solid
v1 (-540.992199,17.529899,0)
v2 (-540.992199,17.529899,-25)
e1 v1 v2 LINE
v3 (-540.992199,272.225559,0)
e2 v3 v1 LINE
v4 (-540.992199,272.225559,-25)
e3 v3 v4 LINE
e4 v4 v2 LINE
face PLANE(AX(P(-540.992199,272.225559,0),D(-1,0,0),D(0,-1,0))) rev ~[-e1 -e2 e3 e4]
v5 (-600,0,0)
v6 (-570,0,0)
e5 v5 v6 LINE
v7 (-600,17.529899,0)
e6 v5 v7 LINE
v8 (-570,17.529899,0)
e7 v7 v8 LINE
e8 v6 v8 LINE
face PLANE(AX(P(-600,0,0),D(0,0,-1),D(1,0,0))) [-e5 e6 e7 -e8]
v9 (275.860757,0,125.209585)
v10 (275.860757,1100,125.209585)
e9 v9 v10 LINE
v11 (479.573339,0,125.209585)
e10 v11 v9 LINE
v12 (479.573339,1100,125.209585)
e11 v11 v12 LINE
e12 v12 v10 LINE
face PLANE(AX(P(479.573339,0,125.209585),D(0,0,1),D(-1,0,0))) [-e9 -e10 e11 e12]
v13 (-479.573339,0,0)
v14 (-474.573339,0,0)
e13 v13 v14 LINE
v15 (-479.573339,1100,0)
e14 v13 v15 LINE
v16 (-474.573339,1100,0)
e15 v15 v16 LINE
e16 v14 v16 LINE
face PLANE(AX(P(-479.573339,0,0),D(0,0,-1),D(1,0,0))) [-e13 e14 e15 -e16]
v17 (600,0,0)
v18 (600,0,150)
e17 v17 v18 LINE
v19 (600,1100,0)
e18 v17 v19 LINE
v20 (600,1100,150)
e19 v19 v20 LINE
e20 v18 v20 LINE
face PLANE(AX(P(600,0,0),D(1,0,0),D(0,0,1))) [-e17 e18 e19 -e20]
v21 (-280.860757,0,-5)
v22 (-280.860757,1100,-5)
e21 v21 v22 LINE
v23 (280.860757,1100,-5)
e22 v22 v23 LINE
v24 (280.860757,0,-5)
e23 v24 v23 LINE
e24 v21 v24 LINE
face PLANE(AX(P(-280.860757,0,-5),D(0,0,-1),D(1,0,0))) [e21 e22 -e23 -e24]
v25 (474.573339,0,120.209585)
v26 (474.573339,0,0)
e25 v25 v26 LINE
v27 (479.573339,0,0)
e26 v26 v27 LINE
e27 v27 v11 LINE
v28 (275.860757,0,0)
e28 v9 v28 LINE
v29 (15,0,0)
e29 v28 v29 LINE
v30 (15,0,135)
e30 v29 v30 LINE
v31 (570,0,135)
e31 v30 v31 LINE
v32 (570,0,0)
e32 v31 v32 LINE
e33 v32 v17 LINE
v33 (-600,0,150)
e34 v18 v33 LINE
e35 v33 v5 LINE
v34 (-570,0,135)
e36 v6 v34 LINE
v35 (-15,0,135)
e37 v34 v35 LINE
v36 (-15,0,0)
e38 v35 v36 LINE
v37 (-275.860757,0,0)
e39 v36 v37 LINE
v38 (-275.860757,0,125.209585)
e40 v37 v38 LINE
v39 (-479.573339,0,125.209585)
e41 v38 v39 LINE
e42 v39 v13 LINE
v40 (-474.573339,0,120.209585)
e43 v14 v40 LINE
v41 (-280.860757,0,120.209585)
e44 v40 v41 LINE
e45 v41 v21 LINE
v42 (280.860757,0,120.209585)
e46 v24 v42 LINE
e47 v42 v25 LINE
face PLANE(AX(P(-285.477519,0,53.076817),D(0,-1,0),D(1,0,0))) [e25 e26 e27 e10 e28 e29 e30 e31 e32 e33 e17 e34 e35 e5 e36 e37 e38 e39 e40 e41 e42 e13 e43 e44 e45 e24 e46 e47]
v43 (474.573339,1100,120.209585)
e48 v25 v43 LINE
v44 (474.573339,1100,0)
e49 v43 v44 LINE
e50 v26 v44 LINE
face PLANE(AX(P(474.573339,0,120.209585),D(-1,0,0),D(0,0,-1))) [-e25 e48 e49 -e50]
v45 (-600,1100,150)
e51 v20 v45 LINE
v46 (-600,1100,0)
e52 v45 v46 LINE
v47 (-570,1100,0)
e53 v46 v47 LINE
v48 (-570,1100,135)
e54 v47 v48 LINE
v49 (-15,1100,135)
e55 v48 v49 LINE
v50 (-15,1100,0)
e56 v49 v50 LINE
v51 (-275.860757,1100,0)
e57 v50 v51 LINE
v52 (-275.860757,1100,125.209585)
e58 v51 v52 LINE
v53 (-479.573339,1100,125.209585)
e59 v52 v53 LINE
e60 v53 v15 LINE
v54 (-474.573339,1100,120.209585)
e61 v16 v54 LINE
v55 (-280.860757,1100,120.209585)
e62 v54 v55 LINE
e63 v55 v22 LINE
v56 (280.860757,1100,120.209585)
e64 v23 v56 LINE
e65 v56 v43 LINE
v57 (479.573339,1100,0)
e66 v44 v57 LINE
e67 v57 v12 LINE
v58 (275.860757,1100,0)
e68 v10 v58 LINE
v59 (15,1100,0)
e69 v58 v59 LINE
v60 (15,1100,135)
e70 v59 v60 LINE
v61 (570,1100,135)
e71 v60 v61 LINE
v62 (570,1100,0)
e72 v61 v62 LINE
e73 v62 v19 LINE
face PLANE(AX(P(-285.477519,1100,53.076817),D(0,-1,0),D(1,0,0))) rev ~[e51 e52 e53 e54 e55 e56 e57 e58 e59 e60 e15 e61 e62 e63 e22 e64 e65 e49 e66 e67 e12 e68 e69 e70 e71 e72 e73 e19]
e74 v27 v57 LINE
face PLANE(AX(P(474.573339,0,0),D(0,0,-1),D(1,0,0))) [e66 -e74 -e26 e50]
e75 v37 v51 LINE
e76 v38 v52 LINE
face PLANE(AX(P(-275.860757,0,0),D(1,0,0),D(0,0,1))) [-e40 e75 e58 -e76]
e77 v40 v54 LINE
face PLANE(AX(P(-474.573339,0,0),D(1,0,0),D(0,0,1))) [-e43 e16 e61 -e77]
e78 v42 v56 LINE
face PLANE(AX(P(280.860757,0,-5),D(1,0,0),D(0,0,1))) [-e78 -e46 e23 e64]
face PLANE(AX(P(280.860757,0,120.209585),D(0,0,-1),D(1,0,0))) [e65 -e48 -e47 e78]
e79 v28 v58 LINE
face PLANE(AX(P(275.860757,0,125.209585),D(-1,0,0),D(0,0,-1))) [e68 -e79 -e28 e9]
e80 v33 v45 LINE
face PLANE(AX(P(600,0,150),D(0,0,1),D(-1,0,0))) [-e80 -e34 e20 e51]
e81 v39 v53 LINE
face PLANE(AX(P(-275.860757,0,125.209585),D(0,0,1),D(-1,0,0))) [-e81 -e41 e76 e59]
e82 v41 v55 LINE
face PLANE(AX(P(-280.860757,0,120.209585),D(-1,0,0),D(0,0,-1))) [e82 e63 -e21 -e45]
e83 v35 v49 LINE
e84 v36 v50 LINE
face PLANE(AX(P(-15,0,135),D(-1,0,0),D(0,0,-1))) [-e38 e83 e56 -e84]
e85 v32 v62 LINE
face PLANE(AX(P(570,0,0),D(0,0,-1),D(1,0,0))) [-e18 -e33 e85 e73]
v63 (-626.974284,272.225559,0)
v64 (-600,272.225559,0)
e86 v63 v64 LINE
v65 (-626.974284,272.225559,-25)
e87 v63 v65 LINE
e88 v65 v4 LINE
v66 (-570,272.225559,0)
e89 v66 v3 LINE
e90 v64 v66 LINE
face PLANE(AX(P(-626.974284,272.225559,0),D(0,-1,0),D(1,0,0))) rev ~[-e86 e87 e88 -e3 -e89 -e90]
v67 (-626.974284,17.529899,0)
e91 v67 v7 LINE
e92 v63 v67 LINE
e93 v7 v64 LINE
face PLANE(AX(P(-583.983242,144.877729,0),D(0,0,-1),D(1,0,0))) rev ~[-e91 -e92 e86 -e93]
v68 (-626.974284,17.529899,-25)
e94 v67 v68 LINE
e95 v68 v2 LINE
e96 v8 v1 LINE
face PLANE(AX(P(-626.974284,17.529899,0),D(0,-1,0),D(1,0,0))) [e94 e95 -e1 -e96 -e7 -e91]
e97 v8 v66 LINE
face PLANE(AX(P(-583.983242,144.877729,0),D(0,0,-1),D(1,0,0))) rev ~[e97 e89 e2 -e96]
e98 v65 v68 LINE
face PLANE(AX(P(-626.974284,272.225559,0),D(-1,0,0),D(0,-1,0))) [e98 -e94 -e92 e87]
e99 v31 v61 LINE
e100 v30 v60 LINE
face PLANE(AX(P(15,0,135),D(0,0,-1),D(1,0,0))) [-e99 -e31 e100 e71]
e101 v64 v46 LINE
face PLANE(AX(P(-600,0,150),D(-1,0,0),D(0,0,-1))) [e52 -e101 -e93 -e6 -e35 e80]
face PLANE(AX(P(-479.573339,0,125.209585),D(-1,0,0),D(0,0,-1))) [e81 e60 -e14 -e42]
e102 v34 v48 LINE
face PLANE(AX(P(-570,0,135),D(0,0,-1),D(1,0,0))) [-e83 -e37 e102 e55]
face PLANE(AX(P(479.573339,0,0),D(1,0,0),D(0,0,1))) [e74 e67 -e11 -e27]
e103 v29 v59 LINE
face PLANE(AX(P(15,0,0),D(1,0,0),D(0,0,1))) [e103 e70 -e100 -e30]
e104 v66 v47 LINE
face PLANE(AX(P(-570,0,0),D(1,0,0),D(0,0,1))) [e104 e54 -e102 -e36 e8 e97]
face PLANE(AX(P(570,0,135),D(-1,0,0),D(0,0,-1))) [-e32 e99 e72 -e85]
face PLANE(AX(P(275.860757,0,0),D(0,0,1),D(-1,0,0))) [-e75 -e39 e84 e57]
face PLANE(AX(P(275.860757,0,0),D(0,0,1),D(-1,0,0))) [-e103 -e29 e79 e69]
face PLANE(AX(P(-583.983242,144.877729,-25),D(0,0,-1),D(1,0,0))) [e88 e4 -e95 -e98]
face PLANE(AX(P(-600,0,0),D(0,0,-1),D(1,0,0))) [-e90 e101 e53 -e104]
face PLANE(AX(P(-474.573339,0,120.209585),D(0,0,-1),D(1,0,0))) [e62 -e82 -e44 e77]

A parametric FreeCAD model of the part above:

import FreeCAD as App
import Part
import Sketcher
from FreeCAD import Vector


def add_polygon(sketch, points):
    """Adds a closed chain of lines whose ends are joined by coincident constraints."""
    first, n = sketch.GeometryCount, len(points)
    for a, b in zip(points, points[1:] + points[:1]):
        sketch.addGeometry(Part.LineSegment(App.Vector(*a, 0), App.Vector(*b, 0)), False)
    for i in range(n):
        sketch.addConstraint(Sketcher.Constraint("Coincident", first + i, 2, first + (i + 1) % n, 1))

doc = App.newDocument("Part")
params = doc.addObject("Spreadsheet::Sheet", "Params")
for row, (alias, value) in enumerate([
    ("sketch1_width", "1200 mm"),
    ("sketch1_width2", "30 mm"),
    ("sketch1_height", "150 mm"),
    ("sketch1_height2", "135 mm"),
    ("pad1_length", "1100 mm"),
    ("sketch2_width", "5 mm"),
    ("pad2_length", "1100 mm"),
    ("pad3_length", "25 mm"),
], start=1):
    params.set(f"A{row}", alias)
    params.set(f"B{row}", "=" + value)
    params.setAlias(f"B{row}", alias)

body = doc.addObject("PartDesign::Body", "Body")

sketch1 = doc.addObject("Sketcher::SketchObject", "Sketch")
body.addObject(sketch1)
sketch1.AttachmentSupport = (doc.XZ_Plane, [""])
sketch1.MapMode = "FlatFace"
add_polygon(sketch1, [(600, 150), (-600, 150), (-600, 0), (-570, 0), (-570, 135), (-15, 135), (-15, 0), (15, 0), (15, 135), (570, 135), (570, 0), (600, 0)])
sketch1.addConstraint([
    Sketcher.Constraint("Horizontal", 0),
    Sketcher.Constraint("Vertical", 1),
    Sketcher.Constraint("Horizontal", 2),
    Sketcher.Constraint("Vertical", 3),
    Sketcher.Constraint("Horizontal", 4),
    Sketcher.Constraint("Vertical", 5),
    Sketcher.Constraint("Horizontal", 6),
    Sketcher.Constraint("Vertical", 7),
    Sketcher.Constraint("Horizontal", 8),
    Sketcher.Constraint("Vertical", 9),
    Sketcher.Constraint("Horizontal", 10),
    Sketcher.Constraint("Vertical", 11),
    Sketcher.Constraint("Symmetric", 5, 2, 6, 2, -1, 1),
    Sketcher.Constraint("Symmetric", 2, 2, 9, 2, -1, 1),
    Sketcher.Constraint("Symmetric", 1, 2, 10, 2, -2),
    Sketcher.Constraint("Horizontal", 4, 2, 7, 2),
    Sketcher.Constraint("Equal", 2, 6),
    Sketcher.Constraint("DistanceX", 0, 2, 0, 1, 1200.0),
    Sketcher.Constraint("DistanceX", 2, 1, 2, 2, 30.0),
    Sketcher.Constraint("DistanceY", 1, 2, 1, 1, 150.0),
    Sketcher.Constraint("DistanceY", 3, 1, 3, 2, 135.0),
])
sketch1.setExpression("Constraints[29]", "Params.sketch1_width")
sketch1.setExpression("Constraints[30]", "Params.sketch1_width2")
sketch1.setExpression("Constraints[31]", "Params.sketch1_height")
sketch1.setExpression("Constraints[32]", "Params.sketch1_height2")
pad1 = doc.addObject("PartDesign::Pad", "Pad")
body.addObject(pad1)
pad1.Profile = sketch1
pad1.setExpression("Length", "Params.pad1_length")
pad1.Reversed = True

sketch2 = doc.addObject("Sketcher::SketchObject", "Sketch001")
body.addObject(sketch2)
sketch2.AttachmentSupport = (doc.XZ_Plane, [""])
sketch2.MapMode = "FlatFace"
add_polygon(sketch2, [(-276, 0), (-276, 125), (-480, 125), (-480, 0), (-475, 0), (-475, 120), (-281, 120), (-281, -5), (281, -5), (281, 120), (475, 120), (475, 0), (480, 0), (480, 125), (276, 125), (276, 0)])
sketch2.addConstraint([
    Sketcher.Constraint("Vertical", 0),
    Sketcher.Constraint("Horizontal", 1),
    Sketcher.Constraint("Vertical", 2),
    Sketcher.Constraint("Horizontal", 3),
    Sketcher.Constraint("Vertical", 4),
    Sketcher.Constraint("Horizontal", 5),
    Sketcher.Constraint("Vertical", 6),
    Sketcher.Constraint("Horizontal", 7),
    Sketcher.Constraint("Vertical", 8),
    Sketcher.Constraint("Horizontal", 9),
    Sketcher.Constraint("Vertical", 10),
    Sketcher.Constraint("Horizontal", 11),
    Sketcher.Constraint("Vertical", 12),
    Sketcher.Constraint("Horizontal", 13),
    Sketcher.Constraint("Vertical", 14),
    Sketcher.Constraint("Horizontal", 15),
    Sketcher.Constraint("Symmetric", 3, 2, 10, 2, -1, 1),
    Sketcher.Constraint("Symmetric", 14, 2, 15, 2, -1, 1),
    Sketcher.Constraint("Symmetric", 5, 2, 8, 2, -2),
    Sketcher.Constraint("Symmetric", 2, 2, 11, 2, -2),
    Sketcher.Constraint("Horizontal", 1, 2, 12, 2),
    Sketcher.Constraint("Equal", 2, 6),
    Sketcher.Constraint("DistanceX", 3, 1, 3, 2, 5.0),
    Sketcher.Constraint("DistanceY", 6, 2, -1, 1, 5.0),
    Sketcher.Constraint("DistanceX", 5, 2, 0, 2, 5.0),
    Sketcher.Constraint("DistanceX", 1, 2, 1, 1, 203.712582),
    Sketcher.Constraint("DistanceX", 7, 1, 7, 2, 561.721514),
    Sketcher.Constraint("DistanceY", 0, 1, 0, 2, 125.209585),
])
sketch2.setExpression("Constraints[38]", "Params.sketch2_width")
pad2 = doc.addObject("PartDesign::Pad", "Pad001")
body.addObject(pad2)
pad2.Profile = sketch2
pad2.setExpression("Length", "Params.pad2_length")
pad2.Reversed = True

sketch3 = doc.addObject("Sketcher::SketchObject", "Sketch002")
body.addObject(sketch3)
sketch3.AttachmentSupport = (doc.XY_Plane, [""])
sketch3.MapMode = "FlatFace"
add_polygon(sketch3, [(-627, 18), (-627, 272), (-541, 272), (-541, 18)])
sketch3.addConstraint([
    Sketcher.Constraint("Vertical", 0),
    Sketcher.Constraint("Horizontal", 1),
    Sketcher.Constraint("Vertical", 2),
    Sketcher.Constraint("Horizontal", 3),
    Sketcher.Constraint("DistanceY", 0, 1, 0, 2, 254.69566),
    Sketcher.Constraint("DistanceX", 1, 2, -1, 1, 540.992199),
    Sketcher.Constraint("DistanceY", -1, 1, 2, 2, 17.529899),
    Sketcher.Constraint("DistanceX", 1, 1, 1, 2, 85.982085),
])
pad3 = doc.addObject("PartDesign::Pad", "Pad002")
body.addObject(pad3)
pad3.Profile = sketch3
pad3.setExpression("Length", "Params.pad3_length")
pad3.Reversed = True

doc.recompute()
